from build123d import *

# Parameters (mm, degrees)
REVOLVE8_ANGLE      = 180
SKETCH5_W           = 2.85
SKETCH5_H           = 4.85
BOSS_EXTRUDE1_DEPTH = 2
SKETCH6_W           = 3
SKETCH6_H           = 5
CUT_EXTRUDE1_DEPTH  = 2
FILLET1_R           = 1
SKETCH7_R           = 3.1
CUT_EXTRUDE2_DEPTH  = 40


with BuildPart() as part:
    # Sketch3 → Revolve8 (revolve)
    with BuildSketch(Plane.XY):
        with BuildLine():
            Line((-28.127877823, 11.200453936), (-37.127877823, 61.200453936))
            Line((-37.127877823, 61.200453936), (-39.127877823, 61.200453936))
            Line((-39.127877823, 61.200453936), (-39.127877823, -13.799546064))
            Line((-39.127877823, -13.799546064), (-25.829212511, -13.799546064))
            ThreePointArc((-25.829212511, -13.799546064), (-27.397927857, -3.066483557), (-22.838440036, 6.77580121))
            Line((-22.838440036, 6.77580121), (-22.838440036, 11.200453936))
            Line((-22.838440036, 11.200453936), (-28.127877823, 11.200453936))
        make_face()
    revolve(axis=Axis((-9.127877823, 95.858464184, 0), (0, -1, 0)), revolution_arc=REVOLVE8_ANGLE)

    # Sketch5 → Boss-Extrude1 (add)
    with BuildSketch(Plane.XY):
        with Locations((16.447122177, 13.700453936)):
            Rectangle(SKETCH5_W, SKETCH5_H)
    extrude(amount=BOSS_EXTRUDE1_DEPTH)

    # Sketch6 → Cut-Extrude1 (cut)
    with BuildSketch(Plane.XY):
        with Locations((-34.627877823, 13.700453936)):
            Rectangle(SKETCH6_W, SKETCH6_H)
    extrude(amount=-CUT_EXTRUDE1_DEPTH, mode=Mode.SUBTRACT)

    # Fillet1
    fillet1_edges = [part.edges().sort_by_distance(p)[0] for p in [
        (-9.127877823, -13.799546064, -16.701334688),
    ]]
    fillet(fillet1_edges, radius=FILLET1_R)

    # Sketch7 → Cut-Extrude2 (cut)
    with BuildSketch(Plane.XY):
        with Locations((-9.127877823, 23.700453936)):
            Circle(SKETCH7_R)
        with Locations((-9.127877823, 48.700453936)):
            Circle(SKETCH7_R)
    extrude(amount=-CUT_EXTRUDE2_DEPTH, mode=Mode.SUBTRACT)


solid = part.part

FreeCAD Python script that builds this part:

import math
import FreeCAD as App
import Part
import Sketcher
from FreeCAD import Vector
Q = App.Units.Quantity


def edges_at(feature, points):
    """Names of the edges that pass closest to the given points."""
    edges = feature.Shape.Edges
    near = lambda p: min(range(len(edges)), key=lambda i: edges[i].distToShape(Part.Vertex(*p))[0])
    return sorted({f"Edge{near(p) + 1}" for p in points})


def add_polygon(sketch, points):
    """Adds a closed chain of lines whose ends are joined by coincident constraints."""
    first, n = sketch.GeometryCount, len(points)
    for a, b in zip(points, points[1:] + points[:1]):
        sketch.addGeometry(Part.LineSegment(App.Vector(*a, 0), App.Vector(*b, 0)), False)
    for i in range(n):
        sketch.addConstraint(Sketcher.Constraint("Coincident", first + i, 2, first + (i + 1) % n, 1))

doc = App.newDocument("Part")
body = doc.addObject("PartDesign::Body", "Body")

sketch1 = body.newObject("Sketcher::SketchObject", "Sketch")
sketch1.AttachmentSupport = (doc.getObject("XY_Plane"), [""])
sketch1.MapMode = "FlatFace"
sketch1.addGeometry([
    Part.LineSegment(Vector(-28.127878, 11.200454, 0), Vector(-37.127878, 61.200454, 0)),
    Part.LineSegment(Vector(-37.127878, 61.200454, 0), Vector(-39.127878, 61.200454, 0)),
    Part.LineSegment(Vector(-39.127878, 61.200454, 0), Vector(-39.127878, -13.799546, 0)),
    Part.LineSegment(Vector(-39.127878, -13.799546, 0), Vector(-25.829213, -13.799546, 0)),
    Part.ArcOfCircle(Part.Circle(Vector(-8.595525, -5.799546, 0), Vector(0, 0, 1), 19), math.radians(138.558089), math.radians(204.901062)),
    Part.LineSegment(Vector(-22.83844, 6.775801, 0), Vector(-22.83844, 11.200454, 0)),
    Part.LineSegment(Vector(-22.83844, 11.200454, 0), Vector(-28.127878, 11.200454, 0)),
], False)
sketch1.addGeometry(Part.LineSegment(Vector(-9.127878, 61.200454, 0), Vector(-9.127878, -13.799546, 0)), True)
sketch1.addConstraint([
    Sketcher.Constraint("Coincident", 0, 2, 1, 1),
    Sketcher.Constraint("Coincident", 1, 2, 2, 1),
    Sketcher.Constraint("Coincident", 2, 2, 3, 1),
    Sketcher.Constraint("Coincident", 3, 2, 4, 2),
    Sketcher.Constraint("Coincident", 4, 1, 5, 1),
    Sketcher.Constraint("Coincident", 5, 2, 6, 1),
    Sketcher.Constraint("Coincident", 6, 2, 0, 1),
    Sketcher.Constraint("Horizontal", 1),
    Sketcher.Constraint("Vertical", 2),
    Sketcher.Constraint("Horizontal", 3),
    Sketcher.Constraint("Vertical", 5),
    Sketcher.Constraint("Horizontal", 6),
    Sketcher.Constraint("Vertical", 7),
    Sketcher.Constraint("Horizontal", 1, 2, 7, 1),
    Sketcher.Constraint("Horizontal", 3, 2, 7, 2),
    Sketcher.Constraint("Radius", 4, Q("19 mm")),
    Sketcher.Constraint("DistanceX", 1, 2, 1, 1, Q("2 mm")),
    Sketcher.Constraint("DistanceY", 2, 2, 2, 1, Q("75 mm")),
    Sketcher.Constraint("DistanceY", 4, 3, 0, 2, Q("67 mm")),
    Sketcher.Constraint("DistanceY", 4, 3, 5, 2, Q("17 mm")),
    Sketcher.Constraint("DistanceX", 2, 2, 6, 2, Q("11 mm")),
    Sketcher.Constraint("DistanceX", 0, 2, 7, 1, Q("28 mm")),
    Sketcher.Constraint("DistanceY", -1, 1, 4, 1, Q("6.775801 mm")),
    Sketcher.Constraint("DistanceX", 3, 1, 3, 2, Q("13.298665 mm")),
    Sketcher.Constraint("DistanceX", 6, 2, 6, 1, Q("5.289438 mm")),
    Sketcher.Constraint("DistanceX", 4, 1, -1, 1, Q("22.83844 mm")),
])
revolution = body.newObject("PartDesign::Revolution", "Revolution")
revolution.Profile = sketch1
revolution.ReferenceAxis = (sketch1, ["Axis0"])
revolution.Angle = 180

sketch2 = body.newObject("Sketcher::SketchObject", "Sketch001")
sketch2.AttachmentSupport = (doc.getObject("XY_Plane"), [""])
sketch2.MapMode = "FlatFace"
add_polygon(sketch2, [(15.022122, 16.125454), (15.022122, 11.275454), (17.872122, 11.275454), (17.872122, 16.125454)])
sketch2.addConstraint([
    Sketcher.Constraint("Vertical", 0),
    Sketcher.Constraint("Horizontal", 1),
    Sketcher.Constraint("Vertical", 2),
    Sketcher.Constraint("Horizontal", 3),
    Sketcher.Constraint("DistanceX", 1, 1, 1, 2, Q("2.85 mm")),
    Sketcher.Constraint("DistanceY", 0, 2, 0, 1, Q("4.85 mm")),
    Sketcher.Constraint("DistanceX", -1, 1, 0, 2, Q("15.022122 mm")),
    Sketcher.Constraint("DistanceY", -1, 1, 0, 2, Q("11.275454 mm")),
])
pad1 = body.newObject("PartDesign::Pad", "Pad")
pad1.Profile = sketch2
pad1.Length = 2

sketch3 = body.newObject("Sketcher::SketchObject", "Sketch002")
sketch3.AttachmentSupport = (doc.getObject("XY_Plane"), [""])
sketch3.MapMode = "FlatFace"
add_polygon(sketch3, [(-36.127878, 16.200454), (-36.127878, 11.200454), (-33.127878, 11.200454), (-33.127878, 16.200454)])
sketch3.addConstraint([
    Sketcher.Constraint("Vertical", 0),
    Sketcher.Constraint("Horizontal", 1),
    Sketcher.Constraint("Vertical", 2),
    Sketcher.Constraint("Horizontal", 3),
    Sketcher.Constraint("DistanceX", 1, 1, 1, 2, Q("3 mm")),
    Sketcher.Constraint("DistanceY", 0, 2, 0, 1, Q("5 mm")),
    Sketcher.Constraint("DistanceX", 0, 2, -1, 1, Q("36.127878 mm")),
    Sketcher.Constraint("DistanceY", -1, 1, 0, 2, Q("11.200454 mm")),
])
pocket1 = body.newObject("PartDesign::Pocket", "Pocket")
pocket1.Profile = sketch3
pocket1.Length = 2
doc.recompute()

fillet = body.newObject("PartDesign::Fillet", "Fillet")
fillet.Base = (pocket1, edges_at(pocket1, [(-9.128, -13.8, -16.701)]))
fillet.Radius = 1

sketch4 = body.newObject("Sketcher::SketchObject", "Sketch003")
sketch4.AttachmentSupport = (doc.getObject("XY_Plane"), [""])
sketch4.MapMode = "FlatFace"
sketch4.addGeometry([
    Part.Circle(Vector(-9.127878, 23.700454, 0), Vector(0, 0, 1), 3.1),
    Part.Circle(Vector(-9.127878, 48.700454, 0), Vector(0, 0, 1), 3.1),
], False)
sketch4.addConstraint([
    Sketcher.Constraint("Equal", 0, 1),
    Sketcher.Constraint("Vertical", 0, 3, 1, 3),
    Sketcher.Constraint("Diameter", 0, Q("6.2 mm")),
    Sketcher.Constraint("DistanceY", 0, 3, 1, 3, Q("25 mm")),
    Sketcher.Constraint("DistanceX", 0, 3, -1, 1, Q("9.127878 mm")),
    Sketcher.Constraint("DistanceY", -1, 1, 0, 3, Q("23.700454 mm")),
])
pocket2 = body.newObject("PartDesign::Pocket", "Pocket001")
pocket2.Profile = sketch4
pocket2.Length = 40

doc.recompute()
